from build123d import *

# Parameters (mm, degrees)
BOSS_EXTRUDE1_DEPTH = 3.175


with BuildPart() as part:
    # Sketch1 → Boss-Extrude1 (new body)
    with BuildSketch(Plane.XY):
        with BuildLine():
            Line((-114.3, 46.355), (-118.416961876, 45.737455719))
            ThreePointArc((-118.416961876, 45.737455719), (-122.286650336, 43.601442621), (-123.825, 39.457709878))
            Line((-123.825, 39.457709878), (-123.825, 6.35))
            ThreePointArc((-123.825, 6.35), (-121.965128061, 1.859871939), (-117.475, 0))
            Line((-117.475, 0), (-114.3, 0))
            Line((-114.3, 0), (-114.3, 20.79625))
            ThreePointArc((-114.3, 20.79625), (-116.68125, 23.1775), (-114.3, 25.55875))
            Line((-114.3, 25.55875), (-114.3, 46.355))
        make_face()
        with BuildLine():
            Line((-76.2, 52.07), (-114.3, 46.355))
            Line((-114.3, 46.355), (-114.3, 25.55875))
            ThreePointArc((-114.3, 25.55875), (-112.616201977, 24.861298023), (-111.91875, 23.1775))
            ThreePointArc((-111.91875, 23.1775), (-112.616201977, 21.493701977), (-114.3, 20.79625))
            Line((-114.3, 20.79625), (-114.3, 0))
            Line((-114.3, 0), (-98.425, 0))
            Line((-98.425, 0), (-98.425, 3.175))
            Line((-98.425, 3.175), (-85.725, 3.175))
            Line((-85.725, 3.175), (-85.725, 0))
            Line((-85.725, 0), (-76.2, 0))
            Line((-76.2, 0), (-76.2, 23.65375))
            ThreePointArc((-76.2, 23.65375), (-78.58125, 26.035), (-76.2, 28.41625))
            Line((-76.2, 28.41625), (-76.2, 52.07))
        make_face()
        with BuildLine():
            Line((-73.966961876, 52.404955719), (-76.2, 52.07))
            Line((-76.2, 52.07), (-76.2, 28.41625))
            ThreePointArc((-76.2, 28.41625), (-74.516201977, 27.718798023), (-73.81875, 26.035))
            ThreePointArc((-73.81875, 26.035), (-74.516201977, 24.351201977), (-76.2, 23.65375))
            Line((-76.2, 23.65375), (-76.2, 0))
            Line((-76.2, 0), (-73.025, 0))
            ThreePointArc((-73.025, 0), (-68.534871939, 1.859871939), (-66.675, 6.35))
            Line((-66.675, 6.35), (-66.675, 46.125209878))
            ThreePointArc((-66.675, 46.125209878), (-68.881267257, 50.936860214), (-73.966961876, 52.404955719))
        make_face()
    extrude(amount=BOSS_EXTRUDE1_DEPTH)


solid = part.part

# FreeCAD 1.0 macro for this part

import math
import FreeCAD as App
import Part
import Sketcher

V = App.Vector
Q = App.Units.Quantity

doc = App.newDocument("Part")
params = doc.addObject("Spreadsheet::Sheet", "Params")
for row, (alias, value) in enumerate([
    ("sketch1_radius", "0.25 in"),
    ("sketch1_width", "0.5 in"),
    ("sketch1_radius2", "0.09375 in"),
    ("sketch1_height", "0.125 in"),
    ("pad1_length", "0.125 in"),
], start=1):
    params.set(f"A{row}", alias)
    params.set(f"B{row}", "=" + value)
    params.setAlias(f"B{row}", alias)

body = doc.addObject("PartDesign::Body", "Body")

sketch1 = body.newObject("Sketcher::SketchObject", "Sketch")
sketch1.AttachmentSupport = (doc.getObject("XY_Plane"), [""])
sketch1.MapMode = "FlatFace"
sketch1.addGeometry([
    Part.LineSegment(V(-114.3, 46.4, 0), V(-118.4, 45.7, 0)),
    Part.ArcOfCircle(Part.Circle(V(-117.5, 39.5, 0), V(0, 0, 1), 6.3), math.radians(99), math.radians(180)),
    Part.LineSegment(V(-123.8, 39.5, 0), V(-123.8, 6.3, 0)),
    Part.ArcOfCircle(Part.Circle(V(-117.5, 6.3, 0), V(0, 0, 1), 6.3), math.radians(180), math.radians(270)),
    Part.LineSegment(V(-117.5, 0, 0), V(-98.4, 0, 0)),
    Part.LineSegment(V(-98.4, 0, 0), V(-98.4, 3.2, 0)),
    Part.LineSegment(V(-98.4, 3.2, 0), V(-85.7, 3.2, 0)),
    Part.LineSegment(V(-85.7, 3.2, 0), V(-85.7, 0, 0)),
    Part.LineSegment(V(-85.7, 0, 0), V(-73, 0, 0)),
    Part.ArcOfCircle(Part.Circle(V(-73, 6.3, 0), V(0, 0, 1), 6.3), math.radians(-90), math.radians(0)),
    Part.LineSegment(V(-66.7, 6.3, 0), V(-66.7, 46.1, 0)),
    Part.ArcOfCircle(Part.Circle(V(-73, 46.1, 0), V(0, 0, 1), 6.3), math.radians(0), math.radians(99)),
    Part.LineSegment(V(-74, 52.4, 0), V(-76.2, 52.1, 0)),
    Part.LineSegment(V(-76.2, 52.1, 0), V(-114.3, 46.4, 0)),
    Part.ArcOfCircle(Part.Circle(V(-76.2, 26, 0), V(0, 0, 1), 2.4), math.radians(90), math.radians(270)),
    Part.ArcOfCircle(Part.Circle(V(-76.2, 26, 0), V(0, 0, 1), 2.4), math.radians(0), math.radians(90)),
    Part.ArcOfCircle(Part.Circle(V(-76.2, 26, 0), V(0, 0, 1), 2.4), math.radians(-90), math.radians(0)),
    Part.ArcOfCircle(Part.Circle(V(-114.3, 23.2, 0), V(0, 0, 1), 2.4), math.radians(90), math.radians(270)),
    Part.ArcOfCircle(Part.Circle(V(-114.3, 23.2, 0), V(0, 0, 1), 2.4), math.radians(0), math.radians(90)),
    Part.ArcOfCircle(Part.Circle(V(-114.3, 23.2, 0), V(0, 0, 1), 2.4), math.radians(-90), math.radians(0)),
], False)
sketch1.addConstraint([
    Sketcher.Constraint("Tangent", 0, 2, 1, 1),
    Sketcher.Constraint("Tangent", 1, 2, 2, 1),
    Sketcher.Constraint("Tangent", 2, 2, 3, 1),
    Sketcher.Constraint("Tangent", 3, 2, 4, 1),
    Sketcher.Constraint("Coincident", 4, 2, 5, 1),
    Sketcher.Constraint("Coincident", 5, 2, 6, 1),
    Sketcher.Constraint("Coincident", 6, 2, 7, 1),
    Sketcher.Constraint("Coincident", 7, 2, 8, 1),
    Sketcher.Constraint("Tangent", 8, 2, 9, 1),
    Sketcher.Constraint("Tangent", 9, 2, 10, 1),
    Sketcher.Constraint("Tangent", 10, 2, 11, 1),
    Sketcher.Constraint("Tangent", 11, 2, 12, 1),
    Sketcher.Constraint("Coincident", 12, 2, 13, 1),
    Sketcher.Constraint("Coincident", 13, 2, 0, 1),
    Sketcher.Constraint("Tangent", 14, 1, 15, 2),
    Sketcher.Constraint("Tangent", 15, 1, 16, 2),
    Sketcher.Constraint("Tangent", 16, 1, 14, 2),
    Sketcher.Constraint("Tangent", 17, 1, 18, 2),
    Sketcher.Constraint("Tangent", 18, 1, 19, 2),
    Sketcher.Constraint("Tangent", 19, 1, 17, 2),
    Sketcher.Constraint("Vertical", 2),
    Sketcher.Constraint("Horizontal", 4),
    Sketcher.Constraint("Vertical", 5),
    Sketcher.Constraint("Horizontal", 6),
    Sketcher.Constraint("Vertical", 7),
    Sketcher.Constraint("Horizontal", 8),
    Sketcher.Constraint("Vertical", 10),
    Sketcher.Constraint("Equal", 1, 3),
    Sketcher.Constraint("Equal", 3, 9),
    Sketcher.Constraint("Equal", 9, 11),
    Sketcher.Constraint("Equal", 16, 17),
    Sketcher.Constraint("PointOnObject", 3, 2, -1),
    Sketcher.Constraint("PointOnObject", 7, 2, -1),
    Sketcher.Constraint("Parallel", 0, 12),
    Sketcher.Constraint("Parallel", 12, 13),
    Sketcher.Constraint("Horizontal", 16, 3, 15, 1),
    Sketcher.Constraint("Horizontal", 19, 3, 18, 1),
    Sketcher.Constraint("Vertical", 16, 3, 12, 2),
    Sketcher.Constraint("Vertical", 19, 3, 13, 2),
    Sketcher.Constraint("Vertical", 12, 2, 14, 1),
    Sketcher.Constraint("Vertical", 14, 1, 16, 1),
    Sketcher.Constraint("Vertical", 13, 2, 17, 1),
    Sketcher.Constraint("Vertical", 17, 1, 19, 1),
    Sketcher.Constraint("Equal", 6, 8),
    Sketcher.Constraint("Radius", 1, Q("0.25 in")),
    Sketcher.Constraint("DistanceX", 6, 1, 6, 2, Q("0.5 in")),
    Sketcher.Constraint("DistanceX", 14, 3, -1, 1, Q("3 in")),
    Sketcher.Constraint("Radius", 14, Q("0.09375 in")),
    Sketcher.Constraint("DistanceX", 2, 2, 4, 2, Q("1 in")),
    Sketcher.Constraint("DistanceX", 17, 3, -1, 1, Q("4.5 in")),
    Sketcher.Constraint("DistanceY", 6, 2, 16, 3, Q("0.9 in")),
    Sketcher.Constraint("DistanceY", 5, 1, 5, 2, Q("0.125 in")),
    Sketcher.Constraint("DistanceY", -1, 1, 12, 2, Q("2.05 in")),
    Sketcher.Constraint("DistanceX", 1, 3, -1, 1, Q("4.625 in")),
    Sketcher.Constraint("DistanceY", -1, 1, 13, 2, Q("1.825 in")),
    Sketcher.Constraint("DistanceY", -1, 1, 17, 3, Q("0.9125 in")),
])
sketch1.setExpression("Constraints[44]", "Params.sketch1_radius")
sketch1.setExpression("Constraints[45]", "Params.sketch1_width")
sketch1.setExpression("Constraints[47]", "Params.sketch1_radius2")
sketch1.setExpression("Constraints[51]", "Params.sketch1_height")
pad1 = body.newObject("PartDesign::Pad", "Pad")
pad1.Profile = sketch1
pad1.setExpression("Length", "Params.pad1_length")

doc.recompute()
